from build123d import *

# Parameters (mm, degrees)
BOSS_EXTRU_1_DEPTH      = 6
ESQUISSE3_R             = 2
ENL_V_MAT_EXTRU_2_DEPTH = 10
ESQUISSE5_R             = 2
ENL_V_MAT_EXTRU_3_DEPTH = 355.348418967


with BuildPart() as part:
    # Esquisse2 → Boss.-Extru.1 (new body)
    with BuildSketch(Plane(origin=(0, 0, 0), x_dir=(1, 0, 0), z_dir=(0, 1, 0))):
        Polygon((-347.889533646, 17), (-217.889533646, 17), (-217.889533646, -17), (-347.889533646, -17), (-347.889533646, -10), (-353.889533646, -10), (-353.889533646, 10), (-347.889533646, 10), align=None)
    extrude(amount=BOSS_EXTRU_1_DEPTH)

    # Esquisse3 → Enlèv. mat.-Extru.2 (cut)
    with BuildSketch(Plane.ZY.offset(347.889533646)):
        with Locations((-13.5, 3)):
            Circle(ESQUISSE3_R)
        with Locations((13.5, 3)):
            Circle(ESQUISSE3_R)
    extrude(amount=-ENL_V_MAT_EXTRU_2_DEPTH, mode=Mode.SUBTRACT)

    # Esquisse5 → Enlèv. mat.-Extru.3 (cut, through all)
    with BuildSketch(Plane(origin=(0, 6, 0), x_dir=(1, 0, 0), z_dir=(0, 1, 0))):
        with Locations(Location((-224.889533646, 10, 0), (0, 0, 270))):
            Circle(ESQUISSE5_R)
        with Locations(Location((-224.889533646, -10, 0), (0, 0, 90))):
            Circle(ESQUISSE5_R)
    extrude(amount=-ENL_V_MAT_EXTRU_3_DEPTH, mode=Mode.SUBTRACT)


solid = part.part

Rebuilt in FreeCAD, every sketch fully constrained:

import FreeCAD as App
import Part
import Sketcher
Q = App.Units.Quantity


def add_polygon(sketch, points):
    """Adds a closed chain of lines whose ends are joined by coincident constraints."""
    first, n = sketch.GeometryCount, len(points)
    for a, b in zip(points, points[1:] + points[:1]):
        sketch.addGeometry(Part.LineSegment(App.Vector(*a, 0), App.Vector(*b, 0)), False)
    for i in range(n):
        sketch.addConstraint(Sketcher.Constraint("Coincident", first + i, 2, first + (i + 1) % n, 1))

doc = App.newDocument("Part")
body = doc.addObject("PartDesign::Body", "Body")

# Sketch on XZ plane
sketch1 = doc.addObject("Sketcher::SketchObject", "Sketch")
body.addObject(sketch1)
sketch1.AttachmentSupport = (doc.XZ_Plane, [""])
sketch1.MapMode = "FlatFace"
add_polygon(sketch1, [(-218, -17), (-348, -17), (-348, -10), (-354, -10), (-354, 10), (-348, 10), (-348, 17), (-218, 17)])  # lines 0-7
sketch1.addConstraint([
    Sketcher.Constraint("Horizontal", 0),
    Sketcher.Constraint("Vertical", 1),
    Sketcher.Constraint("Horizontal", 2),
    Sketcher.Constraint("Vertical", 3),
    Sketcher.Constraint("Horizontal", 4),
    Sketcher.Constraint("Vertical", 5),
    Sketcher.Constraint("Horizontal", 6),
    Sketcher.Constraint("Vertical", 7),
    Sketcher.Constraint("Symmetric", 1, 2, 4, 2, -1),
    Sketcher.Constraint("Equal", 1, 5),
    Sketcher.Constraint("DistanceX", 0, 2, 0, 1, Q("130 mm")),
    Sketcher.Constraint("DistanceX", 2, 2, 2, 1, Q("6 mm")),
    Sketcher.Constraint("DistanceY", 1, 1, 1, 2, Q("7 mm")),
    Sketcher.Constraint("DistanceY", 3, 1, 3, 2, Q("20 mm")),
    Sketcher.Constraint("DistanceX", 0, 2, -1, 1, Q("347.889534 mm")),
])
pad1 = doc.addObject("PartDesign::Pad", "Pad")
body.addObject(pad1)
pad1.Profile = sketch1
pad1.Length = 6
pad1.Reversed = True

# Sketch on YZ plane
sketch2 = doc.addObject("Sketcher::SketchObject", "Sketch001")
body.addObject(sketch2)
sketch2.AttachmentSupport = (doc.YZ_Plane, [""])
sketch2.MapMode = "FlatFace"
sketch2.AttachmentOffset = App.Placement(App.Vector(0, 0, -347.889534), App.Rotation())
sketch2.addGeometry([
    Part.Circle(App.Vector(3, -13.5, 0), App.Vector(0, 0, 1), 2),
    Part.Circle(App.Vector(3, 13.5, 0), App.Vector(0, 0, 1), 2),
], False)
sketch2.addConstraint([
    Sketcher.Constraint("Equal", 0, 1),
    Sketcher.Constraint("Symmetric", 0, 3, 1, 3, -1),
    Sketcher.Constraint("Diameter", 0, Q("4 mm")),
    Sketcher.Constraint("DistanceX", -1, 1, 0, 3, Q("3 mm")),
    Sketcher.Constraint("DistanceY", 0, 3, 1, 3, Q("27 mm")),
])
pocket1 = doc.addObject("PartDesign::Pocket", "Pocket")
body.addObject(pocket1)
pocket1.Profile = sketch2
pocket1.Length = 10
pocket1.Reversed = True

# Sketch on XZ plane
sketch3 = doc.addObject("Sketcher::SketchObject", "Sketch002")
body.addObject(sketch3)
sketch3.AttachmentSupport = (doc.XZ_Plane, [""])
sketch3.MapMode = "FlatFace"
sketch3.AttachmentOffset = App.Placement(App.Vector(0, 0, -6), App.Rotation())
sketch3.addGeometry([
    Part.Circle(App.Vector(-224.9, -10, 0), App.Vector(0, 0, 1), 2),
    Part.Circle(App.Vector(-224.9, 10, 0), App.Vector(0, 0, 1), 2),
], False)
sketch3.addConstraint([
    Sketcher.Constraint("Equal", 0, 1),
    Sketcher.Constraint("Symmetric", 0, 3, 1, 3, -1),
    Sketcher.Constraint("Diameter", 0, Q("4 mm")),
    Sketcher.Constraint("DistanceY", 0, 3, -1, 1, Q("10 mm")),
    Sketcher.Constraint("DistanceX", 0, 3, -1, 1, Q("224.889534 mm")),
])
pocket2 = doc.addObject("PartDesign::Pocket", "Pocket001")
body.addObject(pocket2)
pocket2.Profile = sketch3
pocket2.Type = "ThroughAll"
pocket2.Reversed = True

doc.recompute()
